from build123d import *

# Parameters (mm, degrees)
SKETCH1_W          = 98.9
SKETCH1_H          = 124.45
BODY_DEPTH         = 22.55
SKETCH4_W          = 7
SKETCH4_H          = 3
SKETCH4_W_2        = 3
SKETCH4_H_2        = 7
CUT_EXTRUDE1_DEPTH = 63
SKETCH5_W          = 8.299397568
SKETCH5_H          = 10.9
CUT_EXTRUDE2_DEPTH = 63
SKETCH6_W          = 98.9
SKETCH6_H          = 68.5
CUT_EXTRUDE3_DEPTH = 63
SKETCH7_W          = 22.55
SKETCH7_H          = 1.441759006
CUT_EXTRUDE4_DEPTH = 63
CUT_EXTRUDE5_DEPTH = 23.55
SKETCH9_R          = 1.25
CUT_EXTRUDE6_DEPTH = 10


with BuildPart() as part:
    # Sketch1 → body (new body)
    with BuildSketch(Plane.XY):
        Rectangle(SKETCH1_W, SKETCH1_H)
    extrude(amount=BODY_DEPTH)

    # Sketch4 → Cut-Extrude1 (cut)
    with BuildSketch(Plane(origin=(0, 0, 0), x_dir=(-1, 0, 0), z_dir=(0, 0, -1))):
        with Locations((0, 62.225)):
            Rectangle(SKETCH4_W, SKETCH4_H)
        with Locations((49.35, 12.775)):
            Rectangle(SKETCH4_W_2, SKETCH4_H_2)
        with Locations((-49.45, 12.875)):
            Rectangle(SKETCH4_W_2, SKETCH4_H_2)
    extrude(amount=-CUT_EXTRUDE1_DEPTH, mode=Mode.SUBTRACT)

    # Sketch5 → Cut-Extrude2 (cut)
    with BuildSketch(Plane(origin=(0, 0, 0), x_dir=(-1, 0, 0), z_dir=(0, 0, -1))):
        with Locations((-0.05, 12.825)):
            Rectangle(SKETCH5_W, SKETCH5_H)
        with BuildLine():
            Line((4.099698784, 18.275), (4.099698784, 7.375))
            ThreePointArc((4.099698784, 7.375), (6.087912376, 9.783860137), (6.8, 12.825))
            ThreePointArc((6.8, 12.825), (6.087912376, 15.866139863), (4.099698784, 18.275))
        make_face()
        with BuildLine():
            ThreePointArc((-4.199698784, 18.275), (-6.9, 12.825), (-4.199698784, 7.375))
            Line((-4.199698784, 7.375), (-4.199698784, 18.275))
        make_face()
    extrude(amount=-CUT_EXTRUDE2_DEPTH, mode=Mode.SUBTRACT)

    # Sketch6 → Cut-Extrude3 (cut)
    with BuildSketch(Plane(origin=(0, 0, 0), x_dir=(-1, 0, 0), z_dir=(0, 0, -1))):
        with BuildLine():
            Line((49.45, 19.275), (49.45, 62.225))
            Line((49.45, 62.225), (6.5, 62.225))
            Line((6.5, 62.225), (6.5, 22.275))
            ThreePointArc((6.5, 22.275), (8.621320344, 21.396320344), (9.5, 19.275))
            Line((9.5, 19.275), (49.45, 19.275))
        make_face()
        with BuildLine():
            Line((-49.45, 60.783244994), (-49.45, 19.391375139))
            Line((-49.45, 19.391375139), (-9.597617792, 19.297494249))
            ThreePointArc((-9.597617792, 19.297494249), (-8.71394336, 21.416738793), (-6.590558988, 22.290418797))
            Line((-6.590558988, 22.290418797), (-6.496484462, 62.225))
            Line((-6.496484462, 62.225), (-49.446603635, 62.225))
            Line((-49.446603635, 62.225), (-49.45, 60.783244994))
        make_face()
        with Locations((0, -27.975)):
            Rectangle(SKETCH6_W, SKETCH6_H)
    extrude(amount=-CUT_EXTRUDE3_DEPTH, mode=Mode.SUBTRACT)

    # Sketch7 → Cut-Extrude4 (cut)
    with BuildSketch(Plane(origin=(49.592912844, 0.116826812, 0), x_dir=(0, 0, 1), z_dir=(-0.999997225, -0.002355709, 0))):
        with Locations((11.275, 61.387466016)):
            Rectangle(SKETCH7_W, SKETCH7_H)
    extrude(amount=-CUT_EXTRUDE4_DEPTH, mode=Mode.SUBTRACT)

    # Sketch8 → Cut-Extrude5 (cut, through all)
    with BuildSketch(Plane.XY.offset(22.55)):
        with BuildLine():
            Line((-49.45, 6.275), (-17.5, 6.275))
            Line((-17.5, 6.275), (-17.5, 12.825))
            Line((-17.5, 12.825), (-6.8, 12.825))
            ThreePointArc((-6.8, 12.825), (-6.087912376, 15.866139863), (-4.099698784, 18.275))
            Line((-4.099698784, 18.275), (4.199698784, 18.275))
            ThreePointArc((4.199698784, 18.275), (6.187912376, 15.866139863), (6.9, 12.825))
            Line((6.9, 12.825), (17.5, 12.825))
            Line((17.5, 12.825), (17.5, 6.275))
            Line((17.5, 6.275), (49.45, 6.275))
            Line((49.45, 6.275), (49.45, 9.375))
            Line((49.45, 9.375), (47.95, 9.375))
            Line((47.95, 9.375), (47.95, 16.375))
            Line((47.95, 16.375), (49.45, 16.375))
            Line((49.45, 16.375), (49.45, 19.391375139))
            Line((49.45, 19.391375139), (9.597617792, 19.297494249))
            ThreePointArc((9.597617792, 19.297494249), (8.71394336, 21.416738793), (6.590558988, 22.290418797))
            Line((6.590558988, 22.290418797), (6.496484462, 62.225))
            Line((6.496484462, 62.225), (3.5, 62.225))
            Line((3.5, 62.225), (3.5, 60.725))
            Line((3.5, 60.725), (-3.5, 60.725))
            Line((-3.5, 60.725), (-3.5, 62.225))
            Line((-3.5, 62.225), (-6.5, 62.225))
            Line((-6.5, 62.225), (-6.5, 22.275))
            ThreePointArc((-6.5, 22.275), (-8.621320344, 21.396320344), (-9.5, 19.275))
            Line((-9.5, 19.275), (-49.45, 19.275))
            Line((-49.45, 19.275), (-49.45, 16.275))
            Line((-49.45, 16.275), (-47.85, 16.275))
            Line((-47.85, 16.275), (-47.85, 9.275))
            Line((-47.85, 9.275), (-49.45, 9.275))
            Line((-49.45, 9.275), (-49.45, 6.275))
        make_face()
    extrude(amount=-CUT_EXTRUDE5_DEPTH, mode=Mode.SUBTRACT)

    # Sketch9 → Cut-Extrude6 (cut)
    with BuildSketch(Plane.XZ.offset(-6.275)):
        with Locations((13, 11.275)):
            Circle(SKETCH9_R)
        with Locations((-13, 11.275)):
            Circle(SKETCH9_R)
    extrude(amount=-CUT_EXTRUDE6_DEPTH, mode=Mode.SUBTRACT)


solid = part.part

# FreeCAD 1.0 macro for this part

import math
import FreeCAD as App
import Part
import Sketcher
Q = App.Units.Quantity


def add_polygon(sketch, points):
    """Adds a closed chain of lines whose ends are joined by coincident constraints."""
    first, n = sketch.GeometryCount, len(points)
    for a, b in zip(points, points[1:] + points[:1]):
        sketch.addGeometry(Part.LineSegment(App.Vector(*a, 0), App.Vector(*b, 0)), False)
    for i in range(n):
        sketch.addConstraint(Sketcher.Constraint("Coincident", first + i, 2, first + (i + 1) % n, 1))

doc = App.newDocument("Part")
params = doc.addObject("Spreadsheet::Sheet", "Params")
for row, (alias, value) in enumerate([
    ("sketch1_width", "98.9 mm"),
    ("sketch1_height", "124.45 mm"),
    ("pad1_length", "22.55 mm"),
    ("sketch2_width", "7 mm"),
    ("sketch2_width2", "3 mm"),
    ("pocket1_length", "63 mm"),
    ("sketch3_radius", "6.85 mm"),
    ("pocket2_length", "63 mm"),
    ("sketch4_radius", "3 mm"),
    ("sketch4_width", "98.9 mm"),
    ("sketch4_height", "68.5 mm"),
    ("sketch4_width2", "42.95 mm"),
    ("pocket3_length", "63 mm"),
    ("sketch5_width", "22.55 mm"),
    ("pocket4_length", "63 mm"),
    ("sketch6_radius", "3 mm"),
    ("sketch6_width", "7 mm"),
    ("sketch6_width2", "3 mm"),
    ("sketch6_radius2", "6.85 mm"),
    ("sketch6_width3", "10.7 mm"),
    ("sketch7_diameter", "2.5 mm"),
    ("pocket6_length", "10 mm"),
], start=1):
    params.set(f"A{row}", alias)
    params.set(f"B{row}", "=" + value)
    params.setAlias(f"B{row}", alias)

body = doc.addObject("PartDesign::Body", "Body")
body.AllowCompound = True

# Sketch on XY plane
sketch1 = doc.addObject("Sketcher::SketchObject", "Sketch")
body.addObject(sketch1)
sketch1.AttachmentSupport = (doc.XY_Plane, [""])
sketch1.MapMode = "FlatFace"
add_polygon(sketch1, [(-49, 62), (-49, -62), (49, -62), (49, 62)])  # lines 0-3
sketch1.addConstraint(Sketcher.Constraint("Vertical", 0))
sketch1.addConstraint(Sketcher.Constraint("Horizontal", 1))
sketch1.addConstraint(Sketcher.Constraint("Vertical", 2))
sketch1.addConstraint(Sketcher.Constraint("Horizontal", 3))
sketch1.addConstraint(Sketcher.Constraint("Symmetric", 0, 2, 2, 2, -1, 1))
sketch1.addConstraint(Sketcher.Constraint("DistanceX", 1, 1, 1, 2, Q("98.9 mm")))
sketch1.addConstraint(Sketcher.Constraint("DistanceY", 0, 2, 0, 1, Q("124.45 mm")))
sketch1.setExpression("Constraints[9]", "Params.sketch1_width")
sketch1.setExpression("Constraints[10]", "Params.sketch1_height")
pad1 = doc.addObject("PartDesign::Pad", "Pad")
body.addObject(pad1)
pad1.Profile = sketch1
pad1.setExpression("Length", "Params.pad1_length")

# Sketch on XY plane
sketch2 = doc.addObject("Sketcher::SketchObject", "Sketch001")
body.addObject(sketch2)
sketch2.AttachmentSupport = (doc.XY_Plane, [""])
sketch2.MapMode = "FlatFace"
add_polygon(sketch2, [(3.5, 63.7), (3.5, 60.7), (-3.5, 60.7), (-3.5, 63.7)])  # lines 0-3
add_polygon(sketch2, [(-47.9, 16.3), (-47.9, 9.3), (-50.9, 9.3), (-50.9, 16.3)])  # lines 4-7
add_polygon(sketch2, [(51, 16.4), (51, 9.4), (48, 9.4), (48, 16.4)])  # lines 8-11
sketch2.addConstraint(Sketcher.Constraint("Vertical", 0))
sketch2.addConstraint(Sketcher.Constraint("Horizontal", 1))
sketch2.addConstraint(Sketcher.Constraint("Vertical", 2))
sketch2.addConstraint(Sketcher.Constraint("Horizontal", 3))
sketch2.addConstraint(Sketcher.Constraint("Vertical", 4))
sketch2.addConstraint(Sketcher.Constraint("Horizontal", 5))
sketch2.addConstraint(Sketcher.Constraint("Vertical", 6))
sketch2.addConstraint(Sketcher.Constraint("Horizontal", 7))
sketch2.addConstraint(Sketcher.Constraint("Vertical", 8))
sketch2.addConstraint(Sketcher.Constraint("Horizontal", 9))
sketch2.addConstraint(Sketcher.Constraint("Vertical", 10))
sketch2.addConstraint(Sketcher.Constraint("Horizontal", 11))
sketch2.addConstraint(Sketcher.Constraint("Equal", 7, 9))
sketch2.addConstraint(Sketcher.Constraint("Equal", 11, 0))
sketch2.addConstraint(Sketcher.Constraint("Equal", 3, 4))
sketch2.addConstraint(Sketcher.Constraint("Equal", 6, 8))
sketch2.addConstraint(Sketcher.Constraint("DistanceX", 1, 2, 1, 1, Q("7 mm")))
sketch2.addConstraint(Sketcher.Constraint("DistanceX", 5, 2, 5, 1, Q("3 mm")))
sketch2.addConstraint(Sketcher.Constraint("DistanceX", -1, 1, 0, 2, Q("3.5 mm")))
sketch2.addConstraint(Sketcher.Constraint("DistanceX", 4, 2, 8, 2, Q("98.8 mm")))
sketch2.addConstraint(Sketcher.Constraint("DistanceY", 4, 2, 8, 2, Q("0.1 mm")))
sketch2.addConstraint(Sketcher.Constraint("DistanceX", 4, 2, -1, 1, Q("47.85 mm")))
sketch2.addConstraint(Sketcher.Constraint("DistanceY", 4, 2, 1, 2, Q("51.45 mm")))
sketch2.addConstraint(Sketcher.Constraint("DistanceY", -1, 1, 0, 2, Q("60.725 mm")))
sketch2.setExpression("Constraints[28]", "Params.sketch2_width")
sketch2.setExpression("Constraints[29]", "Params.sketch2_width2")
pocket1 = doc.addObject("PartDesign::Pocket", "Pocket")
body.addObject(pocket1)
pocket1.Profile = sketch2
pocket1.setExpression("Length", "Params.pocket1_length")
pocket1.Reversed = True

# Sketch on XY plane
sketch3 = doc.addObject("Sketcher::SketchObject", "Sketch002")
body.addObject(sketch3)
sketch3.AttachmentSupport = (doc.XY_Plane, [""])
sketch3.MapMode = "FlatFace"
sketch3.addGeometry(Part.LineSegment(App.Vector(4, 7, 0), App.Vector(-4, 7, 0)), False)
sketch3.addGeometry(Part.ArcOfCircle(Part.Circle(App.Vector(0, 13, 0), App.Vector(0, 0, 1), 7), math.radians(180), math.radians(233)), False)
sketch3.addGeometry(Part.ArcOfCircle(Part.Circle(App.Vector(0, 13, 0), App.Vector(0, 0, 1), 7), math.radians(127), math.radians(180)), False)
sketch3.addGeometry(Part.LineSegment(App.Vector(-4, 18, 0), App.Vector(4, 18, 0)), False)
sketch3.addGeometry(Part.ArcOfCircle(Part.Circle(App.Vector(0, 13, 0), App.Vector(0, 0, 1), 7), math.radians(-53), math.radians(53)), False)
sketch3.addConstraint(Sketcher.Constraint("Coincident", 0, 2, 1, 2))
sketch3.addConstraint(Sketcher.Constraint("Tangent", 1, 1, 2, 2))
sketch3.addConstraint(Sketcher.Constraint("Coincident", 2, 1, 3, 1))
sketch3.addConstraint(Sketcher.Constraint("Coincident", 3, 2, 4, 2))
sketch3.addConstraint(Sketcher.Constraint("Coincident", 4, 1, 0, 1))
sketch3.addConstraint(Sketcher.Constraint("Horizontal", 0))
sketch3.addConstraint(Sketcher.Constraint("Horizontal", 3))
sketch3.addConstraint(Sketcher.Constraint("Coincident", 4, 3, 1, 3))
sketch3.addConstraint(Sketcher.Constraint("Equal", 1, 2))
sketch3.addConstraint(Sketcher.Constraint("Equal", 2, 4))
sketch3.addConstraint(Sketcher.Constraint("Horizontal", 4, 3, 1, 1))
sketch3.addConstraint(Sketcher.Constraint("Vertical", 0, 2, 2, 1))
sketch3.addConstraint(Sketcher.Constraint("Radius", 1, Q("6.85 mm")))
sketch3.addConstraint(Sketcher.Constraint("DistanceX", 1, 1, -1, 1, Q("6.8 mm")))
sketch3.addConstraint(Sketcher.Constraint("DistanceY", 0, 2, 2, 1, Q("10.9 mm")))
sketch3.addConstraint(Sketcher.Constraint("DistanceY", -1, 1, 1, 3, Q("12.825 mm")))
sketch3.setExpression("Constraints[12]", "Params.sketch3_radius")
pocket2 = doc.addObject("PartDesign::Pocket", "Pocket001")
body.addObject(pocket2)
pocket2.Profile = sketch3
pocket2.setExpression("Length", "Params.pocket2_length")
pocket2.Reversed = True

# Sketch on XY plane
sketch4 = doc.addObject("Sketcher::SketchObject", "Sketch003")
body.addObject(sketch4)
sketch4.AttachmentSupport = (doc.XY_Plane, [""])
sketch4.MapMode = "FlatFace"
sketch4.addGeometry(Part.LineSegment(App.Vector(-49.5, 19.3, 0), App.Vector(-49.5, 62.2, 0)), False)  # 0
sketch4.addGeometry(Part.LineSegment(App.Vector(-49.5, 62.2, 0), App.Vector(-6.5, 62.2, 0)), False)  # 1
sketch4.addGeometry(Part.LineSegment(App.Vector(-6.5, 62.2, 0), App.Vector(-6.5, 22.3, 0)), False)  # 2
sketch4.addGeometry(Part.ArcOfCircle(Part.Circle(App.Vector(-6.5, 19.3, 0), App.Vector(0, 0, 1), 3), math.radians(90), math.radians(180)), False)  # 3
sketch4.addGeometry(Part.LineSegment(App.Vector(-9.5, 19.3, 0), App.Vector(-49.5, 19.3, 0)), False)  # 4
sketch4.addGeometry(Part.LineSegment(App.Vector(49.5, 60.8, 0), App.Vector(49.5, 19.4, 0)), False)  # 5
sketch4.addGeometry(Part.LineSegment(App.Vector(49.5, 19.4, 0), App.Vector(9.6, 19.3, 0)), False)  # 6
sketch4.addGeometry(Part.ArcOfCircle(Part.Circle(App.Vector(6.6, 19.3, 0), App.Vector(0, 0, 1), 3), math.radians(0), math.radians(90)), False)  # 7
sketch4.addGeometry(Part.LineSegment(App.Vector(6.6, 22.3, 0), App.Vector(6.5, 62.2, 0)), False)  # 8
sketch4.addGeometry(Part.LineSegment(App.Vector(6.5, 62.2, 0), App.Vector(49.4, 62.2, 0)), False)  # 9
sketch4.addGeometry(Part.LineSegment(App.Vector(49.4, 62.2, 0), App.Vector(49.5, 60.8, 0)), False)  # 10
add_polygon(sketch4, [(49.5, 6.3), (49.5, -62.2), (-49.5, -62.2), (-49.5, 6.3)])  # lines 11-14
sketch4.addConstraint(Sketcher.Constraint("Coincident", 0, 2, 1, 1))
sketch4.addConstraint(Sketcher.Constraint("Coincident", 1, 2, 2, 1))
sketch4.addConstraint(Sketcher.Constraint("Coincident", 2, 2, 3, 1))
sketch4.addConstraint(Sketcher.Constraint("Coincident", 3, 2, 4, 1))
sketch4.addConstraint(Sketcher.Constraint("Coincident", 4, 2, 0, 1))
sketch4.addConstraint(Sketcher.Constraint("Coincident", 5, 2, 6, 1))
sketch4.addConstraint(Sketcher.Constraint("Coincident", 6, 2, 7, 1))
sketch4.addConstraint(Sketcher.Constraint("Coincident", 7, 2, 8, 1))
sketch4.addConstraint(Sketcher.Constraint("Coincident", 8, 2, 9, 1))
sketch4.addConstraint(Sketcher.Constraint("Coincident", 9, 2, 10, 1))
sketch4.addConstraint(Sketcher.Constraint("Coincident", 10, 2, 5, 1))
sketch4.addConstraint(Sketcher.Constraint("Vertical", 0))
sketch4.addConstraint(Sketcher.Constraint("Horizontal", 1))
sketch4.addConstraint(Sketcher.Constraint("Vertical", 2))
sketch4.addConstraint(Sketcher.Constraint("Horizontal", 4))
sketch4.addConstraint(Sketcher.Constraint("Vertical", 5))
sketch4.addConstraint(Sketcher.Constraint("Horizontal", 9))
sketch4.addConstraint(Sketcher.Constraint("Vertical", 11))
sketch4.addConstraint(Sketcher.Constraint("Horizontal", 12))
sketch4.addConstraint(Sketcher.Constraint("Vertical", 13))
sketch4.addConstraint(Sketcher.Constraint("Horizontal", 14))
sketch4.addConstraint(Sketcher.Constraint("Equal", 3, 7))
sketch4.addConstraint(Sketcher.Constraint("Symmetric", 0, 2, 11, 2, -1, 1))
sketch4.addConstraint(Sketcher.Constraint("Perpendicular", 6, 8))
sketch4.addConstraint(Sketcher.Constraint("Parallel", 8, 10))
sketch4.addConstraint(Sketcher.Constraint("Horizontal", 1, 2, 8, 2))
sketch4.addConstraint(Sketcher.Constraint("Vertical", 3, 3, 1, 2))
sketch4.addConstraint(Sketcher.Constraint("Vertical", 10, 2, 11, 2))
sketch4.addConstraint(Sketcher.Constraint("Vertical", 4, 2, 12, 2))
sketch4.addConstraint(Sketcher.Constraint("Equal", 1, 0))
sketch4.addConstraint(Sketcher.Constraint("Equal", 4, 2))
sketch4.addConstraint(Sketcher.Constraint("Radius", 3, Q("3 mm")))
sketch4.addConstraint(Sketcher.Constraint("DistanceX", 12, 2, 12, 1, Q("98.9 mm")))
sketch4.addConstraint(Sketcher.Constraint("DistanceY", 11, 2, 11, 1, Q("68.5 mm")))
sketch4.addConstraint(Sketcher.Constraint("DistanceY", 13, 2, 4, 2, Q("13 mm")))
sketch4.addConstraint(Sketcher.Constraint("DistanceX", 1, 1, 1, 2, Q("42.95 mm")))
sketch4.addConstraint(Sketcher.Constraint("DistanceX", 9, 1, 9, 2, Q("42.950119 mm")))
sketch4.addConstraint(Sketcher.Constraint("DistanceY", 5, 2, 5, 1, Q("41.39187 mm")))
sketch4.addConstraint(Sketcher.Constraint("Distance", 10, Q("1.441759 mm")))
sketch4.addConstraint(Sketcher.Constraint("DistanceX", -1, 1, 7, 2, Q("6.590559 mm")))
sketch4.addConstraint(Sketcher.Constraint("DistanceY", -1, 1, 7, 2, Q("22.290419 mm")))
sketch4.addConstraint(Sketcher.Constraint("DistanceX", 7, 2, 6, 2, Q("3.007059 mm")))
sketch4.setExpression("Constraints[35]", "Params.sketch4_radius")
sketch4.setExpression("Constraints[36]", "Params.sketch4_width")
sketch4.setExpression("Constraints[37]", "Params.sketch4_height")
sketch4.setExpression("Constraints[39]", "Params.sketch4_width2")
pocket3 = doc.addObject("PartDesign::Pocket", "Pocket002")
body.addObject(pocket3)
pocket3.Profile = sketch4
pocket3.setExpression("Length", "Params.pocket3_length")
pocket3.Reversed = True

# Sketch on an angled plane
sketch5 = doc.addObject("Sketcher::SketchObject", "Sketch004")
body.addObject(sketch5)
sketch5.Placement = App.Placement(App.Vector(49.592913, 0.116827, 0), App.Rotation(App.Vector(0, 0, 1), App.Vector(-0.002355709, 0.999997225, 0), App.Vector(-0.999997225, -0.002355709, 0), "ZXY"))
add_polygon(sketch5, [(0, 62.1), (0, 60.7), (22.6, 60.7), (22.6, 62.1)])  # lines 0-3
sketch5.addConstraint(Sketcher.Constraint("Vertical", 0))
sketch5.addConstraint(Sketcher.Constraint("Horizontal", 1))
sketch5.addConstraint(Sketcher.Constraint("Vertical", 2))
sketch5.addConstraint(Sketcher.Constraint("Horizontal", 3))
sketch5.addConstraint(Sketcher.Constraint("PointOnObject", 0, 2, -2))
sketch5.addConstraint(Sketcher.Constraint("DistanceX", 1, 1, 1, 2, Q("22.55 mm")))
sketch5.addConstraint(Sketcher.Constraint("DistanceY", 0, 2, 0, 1, Q("1.441759 mm")))
sketch5.addConstraint(Sketcher.Constraint("DistanceY", -1, 1, 0, 2, Q("60.666586 mm")))
sketch5.setExpression("Constraints[9]", "Params.sketch5_width")
pocket4 = doc.addObject("PartDesign::Pocket", "Pocket003")
body.addObject(pocket4)
pocket4.Profile = sketch5
pocket4.setExpression("Length", "Params.pocket4_length")

# Sketch on XY plane
sketch6 = doc.addObject("Sketcher::SketchObject", "Sketch005")
body.addObject(sketch6)
sketch6.AttachmentSupport = (doc.XY_Plane, [""])
sketch6.MapMode = "FlatFace"
sketch6.AttachmentOffset = App.Placement(App.Vector(0, 0, 22.55), App.Rotation())
sketch6.addGeometry(Part.LineSegment(App.Vector(-49.5, 6.3, 0), App.Vector(-17.5, 6.3, 0)), False)
sketch6.addGeometry(Part.LineSegment(App.Vector(-17.5, 6.3, 0), App.Vector(-17.5, 12.8, 0)), False)
sketch6.addGeometry(Part.LineSegment(App.Vector(-17.5, 12.8, 0), App.Vector(-6.8, 12.8, 0)), False)
sketch6.addGeometry(Part.ArcOfCircle(Part.Circle(App.Vector(0, 12.8, 0), App.Vector(0, 0, 1), 6.8), math.radians(127), math.radians(180)), False)
sketch6.addGeometry(Part.LineSegment(App.Vector(-4.1, 18.3, 0), App.Vector(4.2, 18.3, 0)), False)
sketch6.addGeometry(Part.ArcOfCircle(Part.Circle(App.Vector(0.1, 12.8, 0), App.Vector(0, 0, 1), 6.8), math.radians(0), math.radians(53)), False)
sketch6.addGeometry(Part.LineSegment(App.Vector(6.9, 12.8, 0), App.Vector(17.5, 12.8, 0)), False)
sketch6.addGeometry(Part.LineSegment(App.Vector(17.5, 12.8, 0), App.Vector(17.5, 6.3, 0)), False)
sketch6.addGeometry(Part.LineSegment(App.Vector(17.5, 6.3, 0), App.Vector(49.5, 6.3, 0)), False)
sketch6.addGeometry(Part.LineSegment(App.Vector(49.5, 6.3, 0), App.Vector(49.5, 9.4, 0)), False)
sketch6.addGeometry(Part.LineSegment(App.Vector(49.5, 9.4, 0), App.Vector(48, 9.4, 0)), False)
sketch6.addGeometry(Part.LineSegment(App.Vector(48, 9.4, 0), App.Vector(48, 16.4, 0)), False)
sketch6.addGeometry(Part.LineSegment(App.Vector(48, 16.4, 0), App.Vector(49.5, 16.4, 0)), False)
sketch6.addGeometry(Part.LineSegment(App.Vector(49.5, 16.4, 0), App.Vector(49.5, 19.4, 0)), False)
sketch6.addGeometry(Part.LineSegment(App.Vector(49.5, 19.4, 0), App.Vector(9.6, 19.3, 0)), False)
sketch6.addGeometry(Part.ArcOfCircle(Part.Circle(App.Vector(6.6, 19.3, 0), App.Vector(0, 0, 1), 3), math.radians(0), math.radians(90)), False)
sketch6.addGeometry(Part.LineSegment(App.Vector(6.6, 22.3, 0), App.Vector(6.5, 62.2, 0)), False)
sketch6.addGeometry(Part.LineSegment(App.Vector(6.5, 62.2, 0), App.Vector(3.5, 62.2, 0)), False)
sketch6.addGeometry(Part.LineSegment(App.Vector(3.5, 62.2, 0), App.Vector(3.5, 60.7, 0)), False)
sketch6.addGeometry(Part.LineSegment(App.Vector(3.5, 60.7, 0), App.Vector(-3.5, 60.7, 0)), False)
sketch6.addGeometry(Part.LineSegment(App.Vector(-3.5, 60.7, 0), App.Vector(-3.5, 62.2, 0)), False)
sketch6.addGeometry(Part.LineSegment(App.Vector(-3.5, 62.2, 0), App.Vector(-6.5, 62.2, 0)), False)
sketch6.addGeometry(Part.LineSegment(App.Vector(-6.5, 62.2, 0), App.Vector(-6.5, 22.3, 0)), False)
sketch6.addGeometry(Part.ArcOfCircle(Part.Circle(App.Vector(-6.5, 19.3, 0), App.Vector(0, 0, 1), 3), math.radians(90), math.radians(180)), False)
sketch6.addGeometry(Part.LineSegment(App.Vector(-9.5, 19.3, 0), App.Vector(-49.5, 19.3, 0)), False)
sketch6.addGeometry(Part.LineSegment(App.Vector(-49.5, 19.3, 0), App.Vector(-49.5, 16.3, 0)), False)
sketch6.addGeometry(Part.LineSegment(App.Vector(-49.5, 16.3, 0), App.Vector(-47.9, 16.3, 0)), False)
sketch6.addGeometry(Part.LineSegment(App.Vector(-47.9, 16.3, 0), App.Vector(-47.9, 9.3, 0)), False)
sketch6.addGeometry(Part.LineSegment(App.Vector(-47.9, 9.3, 0), App.Vector(-49.5, 9.3, 0)), False)
sketch6.addGeometry(Part.LineSegment(App.Vector(-49.5, 9.3, 0), App.Vector(-49.5, 6.3, 0)), False)
sketch6.addConstraint(Sketcher.Constraint("Coincident", 0, 2, 1, 1))
sketch6.addConstraint(Sketcher.Constraint("Coincident", 1, 2, 2, 1))
sketch6.addConstraint(Sketcher.Constraint("Coincident", 2, 2, 3, 2))
sketch6.addConstraint(Sketcher.Constraint("Coincident", 3, 1, 4, 1))
sketch6.addConstraint(Sketcher.Constraint("Coincident", 4, 2, 5, 2))
sketch6.addConstraint(Sketcher.Constraint("Coincident", 5, 1, 6, 1))
sketch6.addConstraint(Sketcher.Constraint("Coincident", 6, 2, 7, 1))
sketch6.addConstraint(Sketcher.Constraint("Coincident", 7, 2, 8, 1))
sketch6.addConstraint(Sketcher.Constraint("Coincident", 8, 2, 9, 1))
sketch6.addConstraint(Sketcher.Constraint("Coincident", 9, 2, 10, 1))
sketch6.addConstraint(Sketcher.Constraint("Coincident", 10, 2, 11, 1))
sketch6.addConstraint(Sketcher.Constraint("Coincident", 11, 2, 12, 1))
sketch6.addConstraint(Sketcher.Constraint("Coincident", 12, 2, 13, 1))
sketch6.addConstraint(Sketcher.Constraint("Coincident", 13, 2, 14, 1))
sketch6.addConstraint(Sketcher.Constraint("Coincident", 14, 2, 15, 1))
sketch6.addConstraint(Sketcher.Constraint("Coincident", 15, 2, 16, 1))
sketch6.addConstraint(Sketcher.Constraint("Coincident", 16, 2, 17, 1))
sketch6.addConstraint(Sketcher.Constraint("Coincident", 17, 2, 18, 1))
sketch6.addConstraint(Sketcher.Constraint("Coincident", 18, 2, 19, 1))
sketch6.addConstraint(Sketcher.Constraint("Coincident", 19, 2, 20, 1))
sketch6.addConstraint(Sketcher.Constraint("Coincident", 20, 2, 21, 1))
sketch6.addConstraint(Sketcher.Constraint("Coincident", 21, 2, 22, 1))
sketch6.addConstraint(Sketcher.Constraint("Coincident", 22, 2, 23, 1))
sketch6.addConstraint(Sketcher.Constraint("Coincident", 23, 2, 24, 1))
sketch6.addConstraint(Sketcher.Constraint("Coincident", 24, 2, 25, 1))
sketch6.addConstraint(Sketcher.Constraint("Coincident", 25, 2, 26, 1))
sketch6.addConstraint(Sketcher.Constraint("Coincident", 26, 2, 27, 1))
sketch6.addConstraint(Sketcher.Constraint("Coincident", 27, 2, 28, 1))
sketch6.addConstraint(Sketcher.Constraint("Coincident", 28, 2, 29, 1))
sketch6.addConstraint(Sketcher.Constraint("Coincident", 29, 2, 0, 1))
sketch6.addConstraint(Sketcher.Constraint("Horizontal", 0))
sketch6.addConstraint(Sketcher.Constraint("Vertical", 1))
sketch6.addConstraint(Sketcher.Constraint("Horizontal", 2))
sketch6.addConstraint(Sketcher.Constraint("Horizontal", 4))
sketch6.addConstraint(Sketcher.Constraint("Horizontal", 6))
sketch6.addConstraint(Sketcher.Constraint("Vertical", 7))
sketch6.addConstraint(Sketcher.Constraint("Horizontal", 8))
sketch6.addConstraint(Sketcher.Constraint("Vertical", 9))
sketch6.addConstraint(Sketcher.Constraint("Horizontal", 10))
sketch6.addConstraint(Sketcher.Constraint("Vertical", 11))
sketch6.addConstraint(Sketcher.Constraint("Horizontal", 12))
sketch6.addConstraint(Sketcher.Constraint("Vertical", 13))
sketch6.addConstraint(Sketcher.Constraint("Horizontal", 17))
sketch6.addConstraint(Sketcher.Constraint("Vertical", 18))
sketch6.addConstraint(Sketcher.Constraint("Horizontal", 19))
sketch6.addConstraint(Sketcher.Constraint("Vertical", 20))
sketch6.addConstraint(Sketcher.Constraint("Horizontal", 21))
sketch6.addConstraint(Sketcher.Constraint("Vertical", 22))
sketch6.addConstraint(Sketcher.Constraint("Horizontal", 24))
sketch6.addConstraint(Sketcher.Constraint("Vertical", 25))
sketch6.addConstraint(Sketcher.Constraint("Horizontal", 26))
sketch6.addConstraint(Sketcher.Constraint("Vertical", 27))
sketch6.addConstraint(Sketcher.Constraint("Horizontal", 28))
sketch6.addConstraint(Sketcher.Constraint("Vertical", 29))
sketch6.addConstraint(Sketcher.Constraint("Coincident", 5, 3, 3, 3))
sketch6.addConstraint(Sketcher.Constraint("Equal", 3, 5))
sketch6.addConstraint(Sketcher.Constraint("Equal", 15, 23))
sketch6.addConstraint(Sketcher.Constraint("Symmetric", 1, 2, 6, 2, -2))
sketch6.addConstraint(Sketcher.Constraint("Symmetric", 17, 2, 20, 2, -2))
sketch6.addConstraint(Sketcher.Constraint("Symmetric", 8, 2, 29, 2, -2))
sketch6.addConstraint(Sketcher.Constraint("Perpendicular", 14, 16))
sketch6.addConstraint(Sketcher.Constraint("Horizontal", 5, 3, 1, 2))
sketch6.addConstraint(Sketcher.Constraint("Vertical", 9, 2, 12, 2))
sketch6.addConstraint(Sketcher.Constraint("Vertical", 23, 3, 21, 2))
sketch6.addConstraint(Sketcher.Constraint("Vertical", 25, 2, 28, 2))
sketch6.addConstraint(Sketcher.Constraint("Equal", 19, 11))
sketch6.addConstraint(Sketcher.Constraint("Equal", 12, 18))
sketch6.addConstraint(Sketcher.Constraint("Equal", 24, 22))
sketch6.addConstraint(Sketcher.Constraint("Equal", 21, 25))
sketch6.addConstraint(Sketcher.Constraint("Equal", 11, 27))
sketch6.addConstraint(Sketcher.Constraint("Equal", 25, 29))
sketch6.addConstraint(Sketcher.Constraint("Radius", 15, Q("3 mm")))
sketch6.addConstraint(Sketcher.Constraint("DistanceX", 19, 2, 19, 1, Q("7 mm")))
sketch6.addConstraint(Sketcher.Constraint("DistanceX", 21, 2, 21, 1, Q("3 mm")))
sketch6.addConstraint(Sketcher.Constraint("Radius", 3, Q("6.85 mm")))
sketch6.addConstraint(Sketcher.Constraint("DistanceX", 2, 1, 2, 2, Q("10.7 mm")))
sketch6.addConstraint(Sketcher.Constraint("DistanceX", 6, 1, 6, 2, Q("10.6 mm")))
sketch6.addConstraint(Sketcher.Constraint("DistanceX", 10, 2, 10, 1, Q("1.5 mm")))
sketch6.addConstraint(Sketcher.Constraint("DistanceX", 26, 1, 26, 2, Q("1.6 mm")))
sketch6.addConstraint(Sketcher.Constraint("DistanceY", 9, 1, 9, 2, Q("3.1 mm")))
sketch6.addConstraint(Sketcher.Constraint("DistanceY", 0, 2, 23, 3, Q("13 mm")))
sketch6.addConstraint(Sketcher.Constraint("DistanceY", 3, 1, 23, 3, Q("1 mm")))
sketch6.addConstraint(Sketcher.Constraint("DistanceX", 0, 1, 0, 2, Q("31.95 mm")))
sketch6.addConstraint(Sketcher.Constraint("DistanceY", 1, 1, 1, 2, Q("6.55 mm")))
sketch6.addConstraint(Sketcher.Constraint("DistanceY", -1, 1, 3, 3, Q("12.825 mm")))
sketch6.addConstraint(Sketcher.Constraint("DistanceX", 17, 2, 17, 1, Q("2.996484 mm")))
sketch6.addConstraint(Sketcher.Constraint("DistanceY", 13, 1, 13, 2, Q("3.016375 mm")))
sketch6.addConstraint(Sketcher.Constraint("DistanceX", -1, 1, 15, 2, Q("6.590559 mm")))
sketch6.addConstraint(Sketcher.Constraint("DistanceY", -1, 1, 15, 2, Q("22.290419 mm")))
sketch6.addConstraint(Sketcher.Constraint("DistanceX", 4, 2, 14, 2, Q("5.397919 mm")))
sketch6.setExpression("Constraints[71]", "Params.sketch6_radius")
sketch6.setExpression("Constraints[72]", "Params.sketch6_width")
sketch6.setExpression("Constraints[73]", "Params.sketch6_width2")
sketch6.setExpression("Constraints[74]", "Params.sketch6_radius2")
sketch6.setExpression("Constraints[75]", "Params.sketch6_width3")
pocket5 = doc.addObject("PartDesign::Pocket", "Pocket004")
body.addObject(pocket5)
pocket5.Profile = sketch6
pocket5.Type = "ThroughAll"

# Sketch on XZ plane
sketch7 = doc.addObject("Sketcher::SketchObject", "Sketch006")
body.addObject(sketch7)
sketch7.AttachmentSupport = (doc.XZ_Plane, [""])
sketch7.MapMode = "FlatFace"
sketch7.AttachmentOffset = App.Placement(App.Vector(0, 0, -6.275), App.Rotation())
sketch7.addGeometry(Part.Circle(App.Vector(13, 11.3, 0), App.Vector(0, 0, 1), 1.2), False)
sketch7.addGeometry(Part.Circle(App.Vector(-13, 11.3, 0), App.Vector(0, 0, 1), 1.2), False)
sketch7.addConstraint(Sketcher.Constraint("Equal", 0, 1))
sketch7.addConstraint(Sketcher.Constraint("Symmetric", 0, 3, 1, 3, -2))
sketch7.addConstraint(Sketcher.Constraint("Diameter", 0, Q("2.5 mm")))
sketch7.addConstraint(Sketcher.Constraint("DistanceX", -1, 1, 0, 3, Q("13 mm")))
sketch7.addConstraint(Sketcher.Constraint("DistanceY", -1, 1, 0, 3, Q("11.275 mm")))
sketch7.setExpression("Constraints[2]", "Params.sketch7_diameter")
pocket6 = doc.addObject("PartDesign::Pocket", "Pocket005")
body.addObject(pocket6)
pocket6.Profile = sketch7
pocket6.setExpression("Length", "Params.pocket6_length")

doc.recompute()
